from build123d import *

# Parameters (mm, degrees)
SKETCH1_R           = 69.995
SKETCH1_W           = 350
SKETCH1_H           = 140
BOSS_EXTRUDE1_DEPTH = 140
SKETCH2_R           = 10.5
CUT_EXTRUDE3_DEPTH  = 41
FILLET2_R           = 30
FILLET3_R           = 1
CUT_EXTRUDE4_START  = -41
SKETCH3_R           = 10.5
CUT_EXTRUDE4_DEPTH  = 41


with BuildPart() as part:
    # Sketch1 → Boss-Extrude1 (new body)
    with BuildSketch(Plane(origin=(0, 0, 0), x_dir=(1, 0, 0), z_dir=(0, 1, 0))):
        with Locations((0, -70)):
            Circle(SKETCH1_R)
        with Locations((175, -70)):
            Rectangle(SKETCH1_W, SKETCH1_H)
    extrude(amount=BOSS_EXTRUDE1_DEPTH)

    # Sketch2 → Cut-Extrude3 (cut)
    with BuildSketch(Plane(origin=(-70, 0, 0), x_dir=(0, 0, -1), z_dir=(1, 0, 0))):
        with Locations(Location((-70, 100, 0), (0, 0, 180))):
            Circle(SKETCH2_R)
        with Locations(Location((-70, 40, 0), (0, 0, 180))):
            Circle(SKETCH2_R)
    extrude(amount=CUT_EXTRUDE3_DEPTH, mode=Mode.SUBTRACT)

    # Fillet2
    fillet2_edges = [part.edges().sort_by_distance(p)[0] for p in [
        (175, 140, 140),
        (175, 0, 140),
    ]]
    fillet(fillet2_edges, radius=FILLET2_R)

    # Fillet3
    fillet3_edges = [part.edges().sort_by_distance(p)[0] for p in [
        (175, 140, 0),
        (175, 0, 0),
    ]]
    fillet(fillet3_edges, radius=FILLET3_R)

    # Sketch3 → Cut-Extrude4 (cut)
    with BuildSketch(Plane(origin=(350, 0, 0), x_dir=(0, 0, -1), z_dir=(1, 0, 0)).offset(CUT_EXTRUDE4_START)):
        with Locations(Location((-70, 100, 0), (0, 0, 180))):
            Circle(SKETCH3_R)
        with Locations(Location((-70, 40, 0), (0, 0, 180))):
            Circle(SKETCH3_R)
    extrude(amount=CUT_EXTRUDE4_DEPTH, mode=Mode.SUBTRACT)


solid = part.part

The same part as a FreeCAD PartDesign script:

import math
import FreeCAD as App
import Part
import Sketcher
from FreeCAD import Vector
Q = App.Units.Quantity


def edges_at(feature, points):
    """Names of the edges that pass closest to the given points."""
    edges = feature.Shape.Edges
    near = lambda p: min(range(len(edges)), key=lambda i: edges[i].distToShape(Part.Vertex(*p))[0])
    return sorted({f"Edge{near(p) + 1}" for p in points})

doc = App.newDocument("Part")
body = doc.addObject("PartDesign::Body", "Body")

# Sketch on XZ plane
sketch1 = body.newObject("Sketcher::SketchObject", "Sketch")
sketch1.AttachmentSupport = (doc.getObject("XZ_Plane"), [""])
sketch1.MapMode = "FlatFace"
sketch1.addGeometry(Part.LineSegment(Vector(0, 139.995, 0), Vector(0, 140, 0)), False)
sketch1.addGeometry(Part.LineSegment(Vector(0, 140, 0), Vector(350, 140, 0)), False)
sketch1.addGeometry(Part.LineSegment(Vector(350, 140, 0), Vector(350, 0, 0)), False)
sketch1.addGeometry(Part.LineSegment(Vector(350, 0, 0), Vector(0, 0, 0)), False)
sketch1.addGeometry(Part.LineSegment(Vector(0, 0, 0), Vector(0, 0.005, 0)), False)
sketch1.addGeometry(Part.ArcOfCircle(Part.Circle(Vector(0, 70, 0), Vector(0, 0, 1), 69.995), math.radians(90), math.radians(270)), False)
sketch1.addConstraint(Sketcher.Constraint("Coincident", 0, 2, 1, 1))
sketch1.addConstraint(Sketcher.Constraint("Coincident", 1, 2, 2, 1))
sketch1.addConstraint(Sketcher.Constraint("Coincident", 2, 2, 3, 1))
sketch1.addConstraint(Sketcher.Constraint("Coincident", 3, 2, 4, 1))
sketch1.addConstraint(Sketcher.Constraint("Coincident", 4, 2, 5, 2))
sketch1.addConstraint(Sketcher.Constraint("Coincident", 5, 1, 0, 1))
sketch1.addConstraint(Sketcher.Constraint("Vertical", 0))
sketch1.addConstraint(Sketcher.Constraint("Horizontal", 1))
sketch1.addConstraint(Sketcher.Constraint("Vertical", 2))
sketch1.addConstraint(Sketcher.Constraint("Horizontal", 3))
sketch1.addConstraint(Sketcher.Constraint("Vertical", 4))
sketch1.addConstraint(Sketcher.Constraint("Coincident", 3, 2, -1, 1))
sketch1.addConstraint(Sketcher.Constraint("PointOnObject", 5, 3, -2))
sketch1.addConstraint(Sketcher.Constraint("PointOnObject", 0, 2, -2))
sketch1.addConstraint(Sketcher.Constraint("Equal", 0, 4))
sketch1.addConstraint(Sketcher.Constraint("DistanceX", 1, 1, 1, 2, Q("350 mm")))
sketch1.addConstraint(Sketcher.Constraint("DistanceY", 2, 2, 2, 1, Q("140 mm")))
sketch1.addConstraint(Sketcher.Constraint("Radius", 5, Q("69.995 mm")))
pad1 = body.newObject("PartDesign::Pad", "Pad")
pad1.Profile = sketch1
pad1.Length = 140
pad1.Reversed = True

# Sketch on YZ plane
sketch2 = body.newObject("Sketcher::SketchObject", "Sketch001")
sketch2.AttachmentSupport = (doc.getObject("YZ_Plane"), [""])
sketch2.MapMode = "FlatFace"
sketch2.AttachmentOffset = App.Placement(Vector(0, 0, -70), App.Rotation())
sketch2.addGeometry(Part.Circle(Vector(100, 70, 0), Vector(0, 0, 1), 10), False)
sketch2.addGeometry(Part.Circle(Vector(40, 70, 0), Vector(0, 0, 1), 10), False)
sketch2.addConstraint(Sketcher.Constraint("Equal", 0, 1))
sketch2.addConstraint(Sketcher.Constraint("Horizontal", 0, 3, 1, 3))
sketch2.addConstraint(Sketcher.Constraint("Diameter", 0, Q("21 mm")))
sketch2.addConstraint(Sketcher.Constraint("DistanceX", -1, 1, 0, 3, Q("100 mm")))
sketch2.addConstraint(Sketcher.Constraint("DistanceY", -1, 1, 0, 3, Q("70 mm")))
sketch2.addConstraint(Sketcher.Constraint("DistanceX", -1, 1, 1, 3, Q("40 mm")))
pocket1 = body.newObject("PartDesign::Pocket", "Pocket")
pocket1.Profile = sketch2
pocket1.Length = 41
pocket1.Reversed = True
doc.recompute()

fillet = body.newObject("PartDesign::Fillet", "Fillet")
fillet.Base = (pocket1, edges_at(pocket1, [(175, 140, 140), (175, 0, 140)]))
fillet.Radius = 30
doc.recompute()

fillet2 = body.newObject("PartDesign::Fillet", "Fillet001")
fillet2.Base = (fillet, edges_at(fillet, [(175, 140, 0), (175, 0, 0)]))
fillet2.Radius = 1

# Sketch on YZ plane
sketch3 = body.newObject("Sketcher::SketchObject", "Sketch002")
sketch3.AttachmentSupport = (doc.getObject("YZ_Plane"), [""])
sketch3.MapMode = "FlatFace"
sketch3.AttachmentOffset = App.Placement(Vector(0, 0, 309), App.Rotation())
sketch3.addGeometry(Part.Circle(Vector(100, 70, 0), Vector(0, 0, 1), 10), False)
sketch3.addGeometry(Part.Circle(Vector(40, 70, 0), Vector(0, 0, 1), 10), False)
sketch3.addConstraint(Sketcher.Constraint("Equal", 0, 1))
sketch3.addConstraint(Sketcher.Constraint("Horizontal", 0, 3, 1, 3))
sketch3.addConstraint(Sketcher.Constraint("Diameter", 0, Q("21 mm")))
sketch3.addConstraint(Sketcher.Constraint("DistanceX", -1, 1, 0, 3, Q("100 mm")))
sketch3.addConstraint(Sketcher.Constraint("DistanceY", -1, 1, 0, 3, Q("70 mm")))
sketch3.addConstraint(Sketcher.Constraint("DistanceX", -1, 1, 1, 3, Q("40 mm")))
pocket2 = body.newObject("PartDesign::Pocket", "Pocket001")
pocket2.Profile = sketch3
pocket2.Length = 41
pocket2.Reversed = True

doc.recompute()
